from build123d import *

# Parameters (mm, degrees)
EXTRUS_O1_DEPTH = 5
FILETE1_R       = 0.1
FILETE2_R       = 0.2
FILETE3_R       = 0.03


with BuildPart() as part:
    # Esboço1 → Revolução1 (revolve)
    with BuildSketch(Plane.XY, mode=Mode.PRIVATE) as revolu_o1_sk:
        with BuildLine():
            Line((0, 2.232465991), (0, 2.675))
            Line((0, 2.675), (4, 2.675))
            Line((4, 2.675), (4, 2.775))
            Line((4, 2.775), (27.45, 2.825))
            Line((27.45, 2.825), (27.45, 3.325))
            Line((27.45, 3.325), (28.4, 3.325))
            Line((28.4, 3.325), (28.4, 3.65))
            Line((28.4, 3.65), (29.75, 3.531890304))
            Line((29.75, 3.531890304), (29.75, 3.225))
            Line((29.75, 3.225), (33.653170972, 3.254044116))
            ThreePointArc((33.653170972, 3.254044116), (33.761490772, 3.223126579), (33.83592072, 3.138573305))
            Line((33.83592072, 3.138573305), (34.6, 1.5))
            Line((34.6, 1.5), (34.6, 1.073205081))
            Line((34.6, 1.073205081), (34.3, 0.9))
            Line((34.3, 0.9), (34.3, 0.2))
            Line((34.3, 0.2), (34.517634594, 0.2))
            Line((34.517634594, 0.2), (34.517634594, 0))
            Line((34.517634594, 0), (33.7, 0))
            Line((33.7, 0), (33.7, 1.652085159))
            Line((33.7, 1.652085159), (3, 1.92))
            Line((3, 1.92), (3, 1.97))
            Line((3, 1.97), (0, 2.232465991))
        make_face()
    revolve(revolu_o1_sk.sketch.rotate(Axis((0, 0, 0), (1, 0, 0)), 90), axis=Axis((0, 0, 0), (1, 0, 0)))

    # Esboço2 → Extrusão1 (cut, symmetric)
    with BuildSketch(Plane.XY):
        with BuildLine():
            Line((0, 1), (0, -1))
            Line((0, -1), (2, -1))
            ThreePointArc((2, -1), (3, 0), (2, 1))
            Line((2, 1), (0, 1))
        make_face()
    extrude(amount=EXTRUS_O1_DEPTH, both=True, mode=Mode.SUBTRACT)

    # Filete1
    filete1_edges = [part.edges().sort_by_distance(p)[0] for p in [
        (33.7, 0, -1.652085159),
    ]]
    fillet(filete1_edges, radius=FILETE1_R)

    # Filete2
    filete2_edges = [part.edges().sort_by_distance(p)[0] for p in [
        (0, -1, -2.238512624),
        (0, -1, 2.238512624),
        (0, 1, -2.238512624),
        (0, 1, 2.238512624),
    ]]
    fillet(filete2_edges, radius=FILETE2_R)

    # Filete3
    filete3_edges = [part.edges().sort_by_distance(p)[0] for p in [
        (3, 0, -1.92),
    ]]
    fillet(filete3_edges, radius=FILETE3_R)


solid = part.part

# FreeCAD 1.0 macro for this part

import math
import FreeCAD as App
import Part
import Sketcher

V = App.Vector
Q = App.Units.Quantity


def edges_at(feature, points):
    """Names of the edges that pass closest to the given points."""
    edges = feature.Shape.Edges
    near = lambda p: min(range(len(edges)), key=lambda i: edges[i].distToShape(Part.Vertex(*p))[0])
    return sorted({f"Edge{near(p) + 1}" for p in points})

doc = App.newDocument("Part")
body = doc.addObject("PartDesign::Body", "Body")

# Sketch on XY plane
sketch1 = doc.addObject("Sketcher::SketchObject", "Sketch")
body.addObject(sketch1)
sketch1.AttachmentSupport = (doc.XY_Plane, [""])
sketch1.MapMode = "FlatFace"
sketch1.addGeometry(Part.LineSegment(V(0, 2.675, 0), V(0, 2.232466, 0)), False)
sketch1.addGeometry(Part.LineSegment(V(0, 2.232466, 0), V(3, 1.97, 0)), False)
sketch1.addGeometry(Part.LineSegment(V(3, 1.97, 0), V(3, 1.92, 0)), False)
sketch1.addGeometry(Part.LineSegment(V(3, 1.92, 0), V(33.7, 1.652085, 0)), False)
sketch1.addGeometry(Part.LineSegment(V(33.7, 1.652085, 0), V(33.7, 0, 0)), False)
sketch1.addGeometry(Part.LineSegment(V(33.7, 0, 0), V(34.517635, 0, 0)), False)
sketch1.addGeometry(Part.LineSegment(V(34.517635, 0, 0), V(34.517635, 0.2, 0)), False)
sketch1.addGeometry(Part.LineSegment(V(34.517635, 0.2, 0), V(34.3, 0.2, 0)), False)
sketch1.addGeometry(Part.LineSegment(V(34.3, 0.2, 0), V(34.3, 0.9, 0)), False)
sketch1.addGeometry(Part.LineSegment(V(34.3, 0.9, 0), V(34.6, 1.073205, 0)), False)
sketch1.addGeometry(Part.LineSegment(V(34.6, 1.073205, 0), V(34.6, 1.5, 0)), False)
sketch1.addGeometry(Part.LineSegment(V(34.6, 1.5, 0), V(33.835921, 3.138573, 0)), False)
sketch1.addGeometry(Part.ArcOfCircle(Part.Circle(V(33.654659, 3.05405, 0), V(0, 0, 1), 0.2), math.radians(25.000001), math.radians(90.426338)), False)
sketch1.addGeometry(Part.LineSegment(V(33.653171, 3.254044, 0), V(29.75, 3.225, 0)), False)
sketch1.addGeometry(Part.LineSegment(V(29.75, 3.225, 0), V(29.75, 3.53189, 0)), False)
sketch1.addGeometry(Part.LineSegment(V(29.75, 3.53189, 0), V(28.4, 3.65, 0)), False)
sketch1.addGeometry(Part.LineSegment(V(28.4, 3.65, 0), V(28.4, 3.325, 0)), False)
sketch1.addGeometry(Part.LineSegment(V(28.4, 3.325, 0), V(27.45, 3.325, 0)), False)
sketch1.addGeometry(Part.LineSegment(V(27.45, 3.325, 0), V(27.45, 2.825, 0)), False)
sketch1.addGeometry(Part.LineSegment(V(27.45, 2.825, 0), V(4, 2.775, 0)), False)
sketch1.addGeometry(Part.LineSegment(V(4, 2.775, 0), V(4, 2.675, 0)), False)
sketch1.addGeometry(Part.LineSegment(V(4, 2.675, 0), V(0, 2.675, 0)), False)
sketch1.addConstraint(Sketcher.Constraint("Coincident", 0, 2, 1, 1))
sketch1.addConstraint(Sketcher.Constraint("Coincident", 1, 2, 2, 1))
sketch1.addConstraint(Sketcher.Constraint("Coincident", 2, 2, 3, 1))
sketch1.addConstraint(Sketcher.Constraint("Coincident", 3, 2, 4, 1))
sketch1.addConstraint(Sketcher.Constraint("Coincident", 4, 2, 5, 1))
sketch1.addConstraint(Sketcher.Constraint("Coincident", 5, 2, 6, 1))
sketch1.addConstraint(Sketcher.Constraint("Coincident", 6, 2, 7, 1))
sketch1.addConstraint(Sketcher.Constraint("Coincident", 7, 2, 8, 1))
sketch1.addConstraint(Sketcher.Constraint("Coincident", 8, 2, 9, 1))
sketch1.addConstraint(Sketcher.Constraint("Coincident", 9, 2, 10, 1))
sketch1.addConstraint(Sketcher.Constraint("Coincident", 10, 2, 11, 1))
sketch1.addConstraint(Sketcher.Constraint("Tangent", 11, 2, 12, 1))
sketch1.addConstraint(Sketcher.Constraint("Tangent", 12, 2, 13, 1))
sketch1.addConstraint(Sketcher.Constraint("Coincident", 13, 2, 14, 1))
sketch1.addConstraint(Sketcher.Constraint("Coincident", 14, 2, 15, 1))
sketch1.addConstraint(Sketcher.Constraint("Coincident", 15, 2, 16, 1))
sketch1.addConstraint(Sketcher.Constraint("Coincident", 16, 2, 17, 1))
sketch1.addConstraint(Sketcher.Constraint("Coincident", 17, 2, 18, 1))
sketch1.addConstraint(Sketcher.Constraint("Coincident", 18, 2, 19, 1))
sketch1.addConstraint(Sketcher.Constraint("Coincident", 19, 2, 20, 1))
sketch1.addConstraint(Sketcher.Constraint("Coincident", 20, 2, 21, 1))
sketch1.addConstraint(Sketcher.Constraint("Coincident", 21, 2, 0, 1))
sketch1.addConstraint(Sketcher.Constraint("Vertical", 0))
sketch1.addConstraint(Sketcher.Constraint("Vertical", 2))
sketch1.addConstraint(Sketcher.Constraint("Vertical", 4))
sketch1.addConstraint(Sketcher.Constraint("Horizontal", 5))
sketch1.addConstraint(Sketcher.Constraint("Vertical", 6))
sketch1.addConstraint(Sketcher.Constraint("Horizontal", 7))
sketch1.addConstraint(Sketcher.Constraint("Vertical", 8))
sketch1.addConstraint(Sketcher.Constraint("Vertical", 10))
sketch1.addConstraint(Sketcher.Constraint("Vertical", 14))
sketch1.addConstraint(Sketcher.Constraint("Vertical", 16))
sketch1.addConstraint(Sketcher.Constraint("Horizontal", 17))
sketch1.addConstraint(Sketcher.Constraint("Vertical", 18))
sketch1.addConstraint(Sketcher.Constraint("Vertical", 20))
sketch1.addConstraint(Sketcher.Constraint("Horizontal", 21))
sketch1.addConstraint(Sketcher.Constraint("PointOnObject", 0, 2, -2))
sketch1.addConstraint(Sketcher.Constraint("PointOnObject", 4, 2, -1))
sketch1.addConstraint(Sketcher.Constraint("Parallel", 1, 15))
sketch1.addConstraint(Sketcher.Constraint("Radius", 12, 0.2))
sketch1.addConstraint(Sketcher.Constraint("DistanceX", 21, 2, 21, 1, 4.0))
sketch1.addConstraint(Sketcher.Constraint("Angle", 1, Q("-5 deg")))
sketch1.addConstraint(Sketcher.Constraint("Angle", 9, Q("30 deg")))
sketch1.addConstraint(Sketcher.Constraint("Angle", 11, Q("115 deg")))
sketch1.addConstraint(Sketcher.Constraint("DistanceY", 6, 1, 6, 2, 0.2))
sketch1.addConstraint(Sketcher.Constraint("DistanceY", 8, 1, 8, 2, 0.7))
sketch1.addConstraint(Sketcher.Constraint("DistanceY", 18, 2, 18, 1, 0.5))
sketch1.addConstraint(Sketcher.Constraint("DistanceY", 20, 2, 20, 1, 0.1))
sketch1.addConstraint(Sketcher.Constraint("DistanceX", -1, 1, 1, 2, 3.0))
sketch1.addConstraint(Sketcher.Constraint("Angle", 3, Q("-0.5 deg")))
sketch1.addConstraint(Sketcher.Constraint("DistanceX", 17, 2, 17, 1, 0.95))
sketch1.addConstraint(Sketcher.Constraint("DistanceY", 2, 2, 2, 1, 0.05))
sketch1.addConstraint(Sketcher.Constraint("DistanceX", -1, 1, 3, 2, 33.7))
sketch1.addConstraint(Sketcher.Constraint("DistanceX", -1, 1, 7, 2, 34.3))
sketch1.addConstraint(Sketcher.Constraint("DistanceX", -1, 1, 9, 2, 34.6))
sketch1.addConstraint(Sketcher.Constraint("DistanceY", -1, 1, 10, 2, 1.5))
sketch1.addConstraint(Sketcher.Constraint("DistanceX", -1, 1, 15, 2, 28.4))
sketch1.addConstraint(Sketcher.Constraint("DistanceY", 13, 2, 16, 2, 0.1))
sketch1.addConstraint(Sketcher.Constraint("DistanceX", 17, 2, 13, 2, 2.3))
sketch1.addConstraint(Sketcher.Constraint("DistanceY", 16, 2, 16, 1, 0.325))
sketch1.addConstraint(Sketcher.Constraint("DistanceY", -1, 1, 1, 2, 1.97))
sketch1.addConstraint(Sketcher.Constraint("DistanceY", -1, 1, 15, 2, 3.65))
sketch1.addConstraint(Sketcher.Constraint("DistanceY", 19, 2, 18, 2, 0.05))
sketch1.addConstraint(Sketcher.Constraint("Distance", 13, 3.903279))
sketch1.addConstraint(Sketcher.Constraint("DistanceX", 5, 1, 5, 2, 0.817635))
revolution = doc.addObject("PartDesign::Revolution", "Revolution")
body.addObject(revolution)
revolution.Profile = sketch1
revolution.ReferenceAxis = (sketch1, ["H_Axis"])
revolution.Angle = 360

# Sketch on XY plane
sketch2 = doc.addObject("Sketcher::SketchObject", "Sketch001")
body.addObject(sketch2)
sketch2.AttachmentSupport = (doc.XY_Plane, [""])
sketch2.MapMode = "FlatFace"
sketch2.addGeometry(Part.LineSegment(V(0, 1, 0), V(0, -1, 0)), False)
sketch2.addGeometry(Part.LineSegment(V(0, -1, 0), V(2, -1, 0)), False)
sketch2.addGeometry(Part.ArcOfCircle(Part.Circle(V(2, 0, 0), V(0, 0, 1), 1), math.radians(-90), math.radians(90)), False)
sketch2.addGeometry(Part.LineSegment(V(2, 1, 0), V(0, 1, 0)), False)
sketch2.addConstraint(Sketcher.Constraint("Coincident", 0, 2, 1, 1))
sketch2.addConstraint(Sketcher.Constraint("Tangent", 1, 2, 2, 1))
sketch2.addConstraint(Sketcher.Constraint("Tangent", 2, 2, 3, 1))
sketch2.addConstraint(Sketcher.Constraint("Coincident", 3, 2, 0, 1))
sketch2.addConstraint(Sketcher.Constraint("Vertical", 0))
sketch2.addConstraint(Sketcher.Constraint("Horizontal", 1))
sketch2.addConstraint(Sketcher.Constraint("Horizontal", 3))
sketch2.addConstraint(Sketcher.Constraint("Symmetric", 0, 2, 3, 2, -1, 1))
sketch2.addConstraint(Sketcher.Constraint("Equal", 3, 0))
sketch2.addConstraint(Sketcher.Constraint("Radius", 2, 1.0))
pocket1 = doc.addObject("PartDesign::Pocket", "Pocket")
body.addObject(pocket1)
pocket1.Profile = sketch2
pocket1.Length = 10
pocket1.Midplane = True
doc.recompute()

fillet = doc.addObject("PartDesign::Fillet", "Fillet")
body.addObject(fillet)
fillet.Base = (pocket1, edges_at(pocket1, [(33.7, 0, -1.652)]))
fillet.Radius = 0.1
doc.recompute()

fillet2 = doc.addObject("PartDesign::Fillet", "Fillet001")
body.addObject(fillet2)
fillet2.Base = (fillet, edges_at(fillet, [
    (0, -1, -2.239),
    (0, -1, 2.239),
    (0, 1, -2.239),
    (0, 1, 2.239),
]))
fillet2.Radius = 0.2
doc.recompute()

fillet3 = doc.addObject("PartDesign::Fillet", "Fillet002")
body.addObject(fillet3)
fillet3.Base = (fillet2, edges_at(fillet2, [(3, 0, -1.92)]))
fillet3.Radius = 0.03

doc.recompute()
